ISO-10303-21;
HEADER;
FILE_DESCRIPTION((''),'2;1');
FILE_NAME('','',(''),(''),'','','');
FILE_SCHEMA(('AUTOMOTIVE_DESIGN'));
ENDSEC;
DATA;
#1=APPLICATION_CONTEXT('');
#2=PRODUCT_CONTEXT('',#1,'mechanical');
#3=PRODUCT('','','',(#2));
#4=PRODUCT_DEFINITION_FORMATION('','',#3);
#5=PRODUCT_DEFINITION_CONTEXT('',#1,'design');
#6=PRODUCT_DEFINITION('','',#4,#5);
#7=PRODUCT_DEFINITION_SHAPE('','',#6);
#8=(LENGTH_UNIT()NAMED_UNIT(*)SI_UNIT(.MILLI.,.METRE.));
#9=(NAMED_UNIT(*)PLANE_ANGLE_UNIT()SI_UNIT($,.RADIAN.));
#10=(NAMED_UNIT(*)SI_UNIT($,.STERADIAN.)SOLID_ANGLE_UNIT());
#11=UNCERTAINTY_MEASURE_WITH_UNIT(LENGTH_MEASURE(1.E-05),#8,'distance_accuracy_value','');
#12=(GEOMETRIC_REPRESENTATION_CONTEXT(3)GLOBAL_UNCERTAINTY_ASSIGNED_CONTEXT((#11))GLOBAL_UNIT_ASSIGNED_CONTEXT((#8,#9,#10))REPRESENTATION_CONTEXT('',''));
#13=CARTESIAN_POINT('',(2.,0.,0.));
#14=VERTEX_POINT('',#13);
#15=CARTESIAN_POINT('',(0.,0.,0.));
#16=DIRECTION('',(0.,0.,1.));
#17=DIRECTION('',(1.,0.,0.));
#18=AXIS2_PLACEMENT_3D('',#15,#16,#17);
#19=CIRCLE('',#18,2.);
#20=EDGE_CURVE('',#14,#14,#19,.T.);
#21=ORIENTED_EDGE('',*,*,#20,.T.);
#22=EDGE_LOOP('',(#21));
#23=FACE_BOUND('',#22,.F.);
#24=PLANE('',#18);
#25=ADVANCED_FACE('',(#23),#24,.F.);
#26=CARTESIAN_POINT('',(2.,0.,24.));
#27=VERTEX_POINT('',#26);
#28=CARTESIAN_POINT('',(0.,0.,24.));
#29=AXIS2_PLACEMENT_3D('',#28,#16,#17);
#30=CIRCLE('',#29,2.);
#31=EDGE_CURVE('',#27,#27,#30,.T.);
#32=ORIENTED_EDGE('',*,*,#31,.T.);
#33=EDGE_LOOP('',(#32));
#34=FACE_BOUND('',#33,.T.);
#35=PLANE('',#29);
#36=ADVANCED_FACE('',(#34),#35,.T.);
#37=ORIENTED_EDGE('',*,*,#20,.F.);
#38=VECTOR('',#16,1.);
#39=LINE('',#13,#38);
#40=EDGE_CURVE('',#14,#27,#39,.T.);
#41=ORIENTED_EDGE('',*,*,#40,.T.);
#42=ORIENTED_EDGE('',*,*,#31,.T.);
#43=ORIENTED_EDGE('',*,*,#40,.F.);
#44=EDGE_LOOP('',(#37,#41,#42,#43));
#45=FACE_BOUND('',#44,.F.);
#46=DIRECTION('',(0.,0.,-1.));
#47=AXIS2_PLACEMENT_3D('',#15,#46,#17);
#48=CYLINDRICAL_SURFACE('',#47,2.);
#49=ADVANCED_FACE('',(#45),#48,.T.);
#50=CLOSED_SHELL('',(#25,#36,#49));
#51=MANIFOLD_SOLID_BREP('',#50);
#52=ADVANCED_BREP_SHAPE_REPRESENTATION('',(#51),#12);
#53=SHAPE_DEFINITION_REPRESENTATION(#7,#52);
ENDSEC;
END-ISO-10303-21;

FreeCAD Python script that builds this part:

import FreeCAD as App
import Part
import Sketcher
from FreeCAD import Vector

doc = App.newDocument("Part")
body = doc.addObject("PartDesign::Body", "Body")

sketch1 = doc.addObject("Sketcher::SketchObject", "Sketch")
body.addObject(sketch1)
sketch1.AttachmentSupport = (doc.XY_Plane, [""])
sketch1.MapMode = "FlatFace"
sketch1.addGeometry(Part.Circle(Vector(0, 0, 0), Vector(0, 0, 1), 2), False)
sketch1.addConstraint([
    Sketcher.Constraint("Coincident", 0, 3, -1, 1),
    Sketcher.Constraint("Diameter", 0, 4.0),
])
pad1 = doc.addObject("PartDesign::Pad", "Pad")
body.addObject(pad1)
pad1.Profile = sketch1
pad1.Length = 24

doc.recompute()
